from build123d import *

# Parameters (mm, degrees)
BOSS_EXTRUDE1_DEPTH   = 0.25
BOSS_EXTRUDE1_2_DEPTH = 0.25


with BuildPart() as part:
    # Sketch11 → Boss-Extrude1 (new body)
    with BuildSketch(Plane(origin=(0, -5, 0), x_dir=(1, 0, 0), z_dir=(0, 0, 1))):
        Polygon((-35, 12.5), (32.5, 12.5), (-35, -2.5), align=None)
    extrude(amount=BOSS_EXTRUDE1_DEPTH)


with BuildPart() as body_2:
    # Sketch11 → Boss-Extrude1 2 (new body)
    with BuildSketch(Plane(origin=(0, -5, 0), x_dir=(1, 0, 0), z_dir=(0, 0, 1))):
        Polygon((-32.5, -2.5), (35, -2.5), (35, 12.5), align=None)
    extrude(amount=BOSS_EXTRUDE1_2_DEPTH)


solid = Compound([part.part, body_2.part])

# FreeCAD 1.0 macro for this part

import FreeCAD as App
import Part
import Sketcher

V = App.Vector
Q = App.Units.Quantity


def add_polygon(sketch, points):
    """Adds a closed chain of lines whose ends are joined by coincident constraints."""
    first, n = sketch.GeometryCount, len(points)
    for a, b in zip(points, points[1:] + points[:1]):
        sketch.addGeometry(Part.LineSegment(App.Vector(*a, 0), App.Vector(*b, 0)), False)
    for i in range(n):
        sketch.addConstraint(Sketcher.Constraint("Coincident", first + i, 2, first + (i + 1) % n, 1))

doc = App.newDocument("Part")
body = doc.addObject("PartDesign::Body", "Body")

sketch1 = doc.addObject("Sketcher::SketchObject", "Sketch")
body.addObject(sketch1)
sketch1.AttachmentSupport = (doc.XY_Plane, [""])
sketch1.MapMode = "FlatFace"
add_polygon(sketch1, [(32, 8), (-35, 8), (-35, -8)])
sketch1.addConstraint(Sketcher.Constraint("Horizontal", 0))
sketch1.addConstraint(Sketcher.Constraint("Vertical", 1))
sketch1.addConstraint(Sketcher.Constraint("DistanceY", 1, 2, 1, 1, Q("15 mm")))
sketch1.addConstraint(Sketcher.Constraint("DistanceX", 0, 2, 0, 1, Q("67.5 mm")))
sketch1.addConstraint(Sketcher.Constraint("DistanceX", 0, 2, -1, 1, Q("35 mm")))
sketch1.addConstraint(Sketcher.Constraint("DistanceY", -1, 1, 0, 2, Q("7.5 mm")))
pad1 = doc.addObject("PartDesign::Pad", "Pad")
body.addObject(pad1)
pad1.Profile = sketch1
pad1.Length = 0.25
body2 = doc.addObject("PartDesign::Body", "Body001")

sketch2 = doc.addObject("Sketcher::SketchObject", "Sketch001")
body2.addObject(sketch2)
sketch2.AttachmentSupport = (doc.getObject("XY_Plane001"), [""])
sketch2.MapMode = "FlatFace"
add_polygon(sketch2, [(-32, -8), (35, -8), (35, 8)])
sketch2.addConstraint(Sketcher.Constraint("Horizontal", 0))
sketch2.addConstraint(Sketcher.Constraint("Vertical", 1))
sketch2.addConstraint(Sketcher.Constraint("DistanceY", 1, 1, 1, 2, Q("15 mm")))
sketch2.addConstraint(Sketcher.Constraint("DistanceX", 0, 1, 0, 2, Q("67.5 mm")))
sketch2.addConstraint(Sketcher.Constraint("DistanceX", -1, 1, 0, 2, Q("35 mm")))
sketch2.addConstraint(Sketcher.Constraint("DistanceY", 0, 2, -1, 1, Q("7.5 mm")))
pad2 = doc.addObject("PartDesign::Pad", "Pad001")
body2.addObject(pad2)
pad2.Profile = sketch2
pad2.Length = 0.25

doc.recompute()
